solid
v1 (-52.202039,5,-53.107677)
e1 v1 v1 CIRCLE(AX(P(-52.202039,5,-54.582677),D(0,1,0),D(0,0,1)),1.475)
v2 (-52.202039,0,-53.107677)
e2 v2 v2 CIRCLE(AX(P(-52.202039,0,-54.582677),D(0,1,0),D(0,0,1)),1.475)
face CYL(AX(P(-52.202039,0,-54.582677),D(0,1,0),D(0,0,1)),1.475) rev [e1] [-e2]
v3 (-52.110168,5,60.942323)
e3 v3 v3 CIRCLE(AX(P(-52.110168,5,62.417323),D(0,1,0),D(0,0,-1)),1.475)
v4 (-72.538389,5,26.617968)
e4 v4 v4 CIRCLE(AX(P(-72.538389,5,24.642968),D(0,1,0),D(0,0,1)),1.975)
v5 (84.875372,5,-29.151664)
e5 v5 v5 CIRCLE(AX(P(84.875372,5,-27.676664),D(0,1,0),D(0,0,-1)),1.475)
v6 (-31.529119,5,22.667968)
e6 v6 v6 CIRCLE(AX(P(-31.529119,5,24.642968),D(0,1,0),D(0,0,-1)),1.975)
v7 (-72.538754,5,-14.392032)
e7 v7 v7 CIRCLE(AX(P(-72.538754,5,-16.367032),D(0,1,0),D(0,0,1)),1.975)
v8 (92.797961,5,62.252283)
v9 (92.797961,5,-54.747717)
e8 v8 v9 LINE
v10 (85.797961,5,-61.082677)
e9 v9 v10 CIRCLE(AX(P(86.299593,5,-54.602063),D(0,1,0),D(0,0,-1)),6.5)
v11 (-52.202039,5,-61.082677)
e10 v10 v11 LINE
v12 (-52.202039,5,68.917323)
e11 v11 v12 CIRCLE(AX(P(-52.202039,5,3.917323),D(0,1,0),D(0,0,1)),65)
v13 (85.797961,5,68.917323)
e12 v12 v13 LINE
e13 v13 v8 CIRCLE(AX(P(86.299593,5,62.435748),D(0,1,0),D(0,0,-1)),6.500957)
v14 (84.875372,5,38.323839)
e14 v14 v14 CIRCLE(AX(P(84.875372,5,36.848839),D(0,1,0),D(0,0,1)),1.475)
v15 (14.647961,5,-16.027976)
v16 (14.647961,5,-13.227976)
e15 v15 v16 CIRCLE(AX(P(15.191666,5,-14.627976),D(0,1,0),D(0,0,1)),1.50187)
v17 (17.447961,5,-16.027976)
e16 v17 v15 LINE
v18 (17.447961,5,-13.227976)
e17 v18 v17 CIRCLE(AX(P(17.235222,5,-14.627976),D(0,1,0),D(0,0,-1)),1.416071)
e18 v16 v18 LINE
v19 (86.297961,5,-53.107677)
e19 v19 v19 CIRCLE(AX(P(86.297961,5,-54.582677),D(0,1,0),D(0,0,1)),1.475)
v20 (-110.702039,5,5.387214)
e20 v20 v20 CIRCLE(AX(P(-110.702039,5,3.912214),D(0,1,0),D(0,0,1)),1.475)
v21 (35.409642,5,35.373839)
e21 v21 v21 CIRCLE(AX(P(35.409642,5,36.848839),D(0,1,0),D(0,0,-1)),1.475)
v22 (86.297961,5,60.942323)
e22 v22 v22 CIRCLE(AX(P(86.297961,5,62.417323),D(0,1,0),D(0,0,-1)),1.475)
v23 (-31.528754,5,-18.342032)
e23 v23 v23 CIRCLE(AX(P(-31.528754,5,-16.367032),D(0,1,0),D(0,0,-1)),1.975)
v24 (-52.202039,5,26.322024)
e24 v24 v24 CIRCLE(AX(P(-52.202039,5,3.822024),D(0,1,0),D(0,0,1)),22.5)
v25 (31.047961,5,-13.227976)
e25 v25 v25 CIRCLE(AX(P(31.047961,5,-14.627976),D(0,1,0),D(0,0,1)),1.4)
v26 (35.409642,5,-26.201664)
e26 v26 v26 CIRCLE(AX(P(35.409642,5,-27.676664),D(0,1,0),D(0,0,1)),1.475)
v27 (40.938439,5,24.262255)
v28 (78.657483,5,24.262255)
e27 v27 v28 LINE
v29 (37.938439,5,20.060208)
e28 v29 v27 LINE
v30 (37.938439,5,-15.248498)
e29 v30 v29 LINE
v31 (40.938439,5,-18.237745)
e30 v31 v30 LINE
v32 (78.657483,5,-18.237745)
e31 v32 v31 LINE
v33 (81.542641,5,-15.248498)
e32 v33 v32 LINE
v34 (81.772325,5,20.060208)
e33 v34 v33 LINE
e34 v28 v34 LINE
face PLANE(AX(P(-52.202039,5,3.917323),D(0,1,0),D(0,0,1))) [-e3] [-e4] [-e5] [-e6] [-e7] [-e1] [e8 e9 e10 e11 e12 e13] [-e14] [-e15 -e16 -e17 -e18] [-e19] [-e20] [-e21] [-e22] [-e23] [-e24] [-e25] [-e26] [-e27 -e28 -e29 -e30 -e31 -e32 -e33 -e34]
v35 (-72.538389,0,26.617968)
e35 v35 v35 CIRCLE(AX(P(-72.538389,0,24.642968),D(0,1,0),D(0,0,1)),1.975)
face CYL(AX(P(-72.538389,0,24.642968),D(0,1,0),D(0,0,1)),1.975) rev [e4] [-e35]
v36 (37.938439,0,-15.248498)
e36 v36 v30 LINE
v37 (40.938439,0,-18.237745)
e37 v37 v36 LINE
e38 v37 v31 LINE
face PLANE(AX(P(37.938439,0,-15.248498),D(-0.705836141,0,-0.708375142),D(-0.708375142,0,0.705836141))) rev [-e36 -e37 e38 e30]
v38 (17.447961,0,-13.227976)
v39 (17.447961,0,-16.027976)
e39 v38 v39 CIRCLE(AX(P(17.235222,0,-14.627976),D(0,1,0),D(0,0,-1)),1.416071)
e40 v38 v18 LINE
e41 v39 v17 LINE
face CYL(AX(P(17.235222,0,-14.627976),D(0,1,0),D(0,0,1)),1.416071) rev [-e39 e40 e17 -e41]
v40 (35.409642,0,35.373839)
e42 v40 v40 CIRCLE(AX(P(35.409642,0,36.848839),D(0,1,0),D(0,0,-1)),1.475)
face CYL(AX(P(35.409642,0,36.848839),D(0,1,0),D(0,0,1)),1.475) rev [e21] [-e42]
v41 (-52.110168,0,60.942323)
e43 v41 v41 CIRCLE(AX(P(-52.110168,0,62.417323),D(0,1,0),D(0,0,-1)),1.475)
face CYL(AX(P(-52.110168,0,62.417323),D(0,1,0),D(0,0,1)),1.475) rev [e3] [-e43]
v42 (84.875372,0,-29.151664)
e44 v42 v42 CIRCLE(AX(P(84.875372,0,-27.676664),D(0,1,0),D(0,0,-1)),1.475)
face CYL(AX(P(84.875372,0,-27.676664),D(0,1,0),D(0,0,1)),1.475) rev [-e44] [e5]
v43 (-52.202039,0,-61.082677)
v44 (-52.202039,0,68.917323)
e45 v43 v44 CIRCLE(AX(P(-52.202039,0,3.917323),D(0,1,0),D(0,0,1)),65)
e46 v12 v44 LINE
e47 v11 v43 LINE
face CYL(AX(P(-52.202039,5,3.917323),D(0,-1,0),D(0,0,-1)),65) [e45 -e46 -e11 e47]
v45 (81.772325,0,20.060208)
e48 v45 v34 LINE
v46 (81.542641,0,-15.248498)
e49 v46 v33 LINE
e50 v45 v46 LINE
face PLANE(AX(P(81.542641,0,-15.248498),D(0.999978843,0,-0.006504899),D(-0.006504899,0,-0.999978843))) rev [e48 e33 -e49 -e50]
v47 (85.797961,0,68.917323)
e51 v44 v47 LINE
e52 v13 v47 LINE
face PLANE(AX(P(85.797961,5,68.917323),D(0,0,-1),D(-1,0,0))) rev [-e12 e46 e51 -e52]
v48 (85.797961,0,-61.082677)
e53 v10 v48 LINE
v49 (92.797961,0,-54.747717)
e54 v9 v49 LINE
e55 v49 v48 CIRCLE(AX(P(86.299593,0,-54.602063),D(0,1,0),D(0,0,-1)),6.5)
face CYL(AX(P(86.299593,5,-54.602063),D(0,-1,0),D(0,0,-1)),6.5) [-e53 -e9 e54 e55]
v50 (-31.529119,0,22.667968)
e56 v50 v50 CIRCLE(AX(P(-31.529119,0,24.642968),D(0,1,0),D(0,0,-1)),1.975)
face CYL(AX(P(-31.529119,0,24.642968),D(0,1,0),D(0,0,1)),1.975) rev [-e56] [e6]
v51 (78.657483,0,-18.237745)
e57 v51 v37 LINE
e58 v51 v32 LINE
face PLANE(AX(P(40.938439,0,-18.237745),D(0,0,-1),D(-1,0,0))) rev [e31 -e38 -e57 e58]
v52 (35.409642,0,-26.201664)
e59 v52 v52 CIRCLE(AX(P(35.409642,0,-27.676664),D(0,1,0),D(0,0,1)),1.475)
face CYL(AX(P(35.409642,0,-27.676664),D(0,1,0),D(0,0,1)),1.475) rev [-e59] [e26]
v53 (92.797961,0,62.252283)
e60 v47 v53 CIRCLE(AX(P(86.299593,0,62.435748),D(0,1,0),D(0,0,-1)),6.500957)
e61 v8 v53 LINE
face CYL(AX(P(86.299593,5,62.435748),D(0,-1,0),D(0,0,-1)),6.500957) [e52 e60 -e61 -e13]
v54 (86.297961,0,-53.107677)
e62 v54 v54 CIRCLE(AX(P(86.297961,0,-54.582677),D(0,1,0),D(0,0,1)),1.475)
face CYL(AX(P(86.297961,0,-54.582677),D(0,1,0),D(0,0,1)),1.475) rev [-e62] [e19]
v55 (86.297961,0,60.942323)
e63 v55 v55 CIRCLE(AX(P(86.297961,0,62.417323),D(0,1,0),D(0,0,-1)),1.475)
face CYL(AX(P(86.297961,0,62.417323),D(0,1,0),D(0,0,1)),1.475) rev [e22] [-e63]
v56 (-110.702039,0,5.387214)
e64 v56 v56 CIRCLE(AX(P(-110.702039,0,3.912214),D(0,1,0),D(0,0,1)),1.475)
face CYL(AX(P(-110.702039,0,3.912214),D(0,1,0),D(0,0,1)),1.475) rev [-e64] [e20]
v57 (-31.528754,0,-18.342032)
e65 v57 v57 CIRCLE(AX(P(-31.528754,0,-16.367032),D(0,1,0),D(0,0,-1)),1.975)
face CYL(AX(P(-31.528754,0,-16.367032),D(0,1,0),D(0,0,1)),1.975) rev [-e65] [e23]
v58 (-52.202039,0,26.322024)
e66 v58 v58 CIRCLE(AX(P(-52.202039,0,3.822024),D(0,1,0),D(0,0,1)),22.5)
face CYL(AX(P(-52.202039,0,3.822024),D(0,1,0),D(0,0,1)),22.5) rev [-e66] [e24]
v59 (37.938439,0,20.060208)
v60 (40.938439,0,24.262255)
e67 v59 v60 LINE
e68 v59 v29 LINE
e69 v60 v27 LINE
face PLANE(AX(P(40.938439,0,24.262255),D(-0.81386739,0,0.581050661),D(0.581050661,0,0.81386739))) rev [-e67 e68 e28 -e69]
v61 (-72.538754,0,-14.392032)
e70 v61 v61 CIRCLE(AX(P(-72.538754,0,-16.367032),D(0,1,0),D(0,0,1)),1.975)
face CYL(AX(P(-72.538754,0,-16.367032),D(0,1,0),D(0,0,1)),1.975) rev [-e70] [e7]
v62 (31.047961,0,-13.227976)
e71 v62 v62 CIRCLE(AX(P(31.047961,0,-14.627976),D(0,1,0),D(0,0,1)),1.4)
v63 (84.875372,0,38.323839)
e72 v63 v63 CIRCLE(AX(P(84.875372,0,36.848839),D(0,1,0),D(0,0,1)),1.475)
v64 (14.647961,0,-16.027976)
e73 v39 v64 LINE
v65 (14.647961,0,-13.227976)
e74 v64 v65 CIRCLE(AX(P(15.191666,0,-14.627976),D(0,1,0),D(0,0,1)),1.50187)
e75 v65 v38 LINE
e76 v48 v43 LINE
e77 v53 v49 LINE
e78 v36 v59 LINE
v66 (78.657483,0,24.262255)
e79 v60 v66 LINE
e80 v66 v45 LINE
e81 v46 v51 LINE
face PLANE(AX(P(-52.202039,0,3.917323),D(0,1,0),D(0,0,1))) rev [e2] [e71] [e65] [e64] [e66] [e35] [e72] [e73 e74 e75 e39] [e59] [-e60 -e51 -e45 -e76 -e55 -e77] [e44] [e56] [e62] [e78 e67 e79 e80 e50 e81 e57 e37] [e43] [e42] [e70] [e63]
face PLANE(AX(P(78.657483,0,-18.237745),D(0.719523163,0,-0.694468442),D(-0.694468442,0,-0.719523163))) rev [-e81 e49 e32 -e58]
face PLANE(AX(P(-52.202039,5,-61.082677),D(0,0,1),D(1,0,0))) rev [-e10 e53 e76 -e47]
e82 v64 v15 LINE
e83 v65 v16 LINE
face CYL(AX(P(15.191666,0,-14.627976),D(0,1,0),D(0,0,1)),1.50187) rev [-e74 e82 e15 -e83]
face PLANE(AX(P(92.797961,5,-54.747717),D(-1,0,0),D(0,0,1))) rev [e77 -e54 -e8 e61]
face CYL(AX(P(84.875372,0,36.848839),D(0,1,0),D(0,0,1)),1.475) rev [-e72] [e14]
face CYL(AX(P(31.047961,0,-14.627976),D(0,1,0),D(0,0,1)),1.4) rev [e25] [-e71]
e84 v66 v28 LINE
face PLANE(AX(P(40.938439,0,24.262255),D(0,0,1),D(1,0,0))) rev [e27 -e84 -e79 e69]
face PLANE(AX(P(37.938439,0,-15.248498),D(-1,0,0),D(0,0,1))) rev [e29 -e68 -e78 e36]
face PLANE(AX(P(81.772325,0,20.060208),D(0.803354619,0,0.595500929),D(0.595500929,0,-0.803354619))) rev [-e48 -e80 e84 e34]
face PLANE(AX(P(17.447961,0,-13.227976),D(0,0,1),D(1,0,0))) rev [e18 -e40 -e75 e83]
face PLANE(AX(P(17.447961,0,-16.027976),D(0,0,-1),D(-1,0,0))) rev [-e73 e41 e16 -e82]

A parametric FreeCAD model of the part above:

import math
import FreeCAD as App
import Part
import Sketcher
Q = App.Units.Quantity

doc = App.newDocument("Part")
body = doc.addObject("PartDesign::Body", "Body")

# Sketch on XZ plane
sketch1 = body.newObject("Sketcher::SketchObject", "Sketch")
sketch1.AttachmentSupport = (doc.getObject("XZ_Plane"), [""])
sketch1.MapMode = "FlatFace"
sketch1.addGeometry([
    Part.LineSegment(App.Vector(85.797961, -61.082677, 0), App.Vector(-52.202039, -61.082677, 0)),  # 0
    Part.ArcOfCircle(Part.Circle(App.Vector(-52.202039, 3.917323, 0), App.Vector(0, 0, 1), 65), math.radians(90), math.radians(270)),  # 1
    Part.LineSegment(App.Vector(-52.202039, 68.917323, 0), App.Vector(85.797961, 68.917323, 0)),  # 2
    Part.ArcOfCircle(Part.Circle(App.Vector(86.299593, 62.435748, 0), App.Vector(0, 0, 1), 6.500957), math.radians(-1.617174), math.radians(94.425503)),  # 3
    Part.LineSegment(App.Vector(92.797961, 62.252283, 0), App.Vector(92.797961, -54.747717, 0)),  # 4
    Part.ArcOfCircle(Part.Circle(App.Vector(86.299593, -54.602063, 0), App.Vector(0, 0, 1), 6.5), math.radians(-94.426156), math.radians(-1.284013)),  # 5
], False)
sketch1.addConstraint([
    Sketcher.Constraint("Coincident", 0, 2, 1, 2),
    Sketcher.Constraint("Coincident", 1, 1, 2, 1),
    Sketcher.Constraint("Coincident", 2, 2, 3, 2),
    Sketcher.Constraint("Coincident", 3, 1, 4, 1),
    Sketcher.Constraint("Coincident", 4, 2, 5, 2),
    Sketcher.Constraint("Coincident", 5, 1, 0, 1),
    Sketcher.Constraint("Horizontal", 0),
    Sketcher.Constraint("Horizontal", 2),
    Sketcher.Constraint("Vertical", 4),
    Sketcher.Constraint("Radius", 1, Q("65 mm")),
    Sketcher.Constraint("Radius", 5, Q("6.5 mm")),
    Sketcher.Constraint("DistanceX", 0, 2, 0, 1, Q("138 mm")),
    Sketcher.Constraint("DistanceX", 2, 1, 2, 2, Q("138 mm")),
    Sketcher.Constraint("DistanceY", 4, 2, 4, 1, Q("117 mm")),
    Sketcher.Constraint("DistanceX", 1, 3, 2, 2, Q("138 mm")),
    Sketcher.Constraint("DistanceX", 0, 2, 2, 2, Q("138 mm")),
    Sketcher.Constraint("DistanceX", 2, 2, 3, 1, Q("7 mm")),
    Sketcher.Constraint("Radius", 3, Q("6.500957 mm")),
    Sketcher.Constraint("DistanceX", 1, 3, -1, 1, Q("52.202039 mm")),
    Sketcher.Constraint("DistanceY", -1, 1, 3, 3, Q("62.435748 mm")),
    Sketcher.Constraint("DistanceY", 3, 1, 2, 2, Q("6.66504 mm")),
])
pad1 = body.newObject("PartDesign::Pad", "Pad")
pad1.Profile = sketch1
pad1.Length = 5
pad1.Reversed = True

# Sketch on XZ plane
sketch2 = body.newObject("Sketcher::SketchObject", "Sketch001")
sketch2.AttachmentSupport = (doc.getObject("XZ_Plane"), [""])
sketch2.MapMode = "FlatFace"
sketch2.AttachmentOffset = App.Placement(App.Vector(0, 0, -5), App.Rotation())
sketch2.addGeometry([
    Part.Circle(App.Vector(86.297961, -54.582677, 0), App.Vector(0, 0, 1), 1.475),  # 0
    Part.Circle(App.Vector(-52.202039, -54.582677, 0), App.Vector(0, 0, 1), 1.475),  # 1
    Part.Circle(App.Vector(-110.702039, 3.912214, 0), App.Vector(0, 0, 1), 1.475),  # 2
    Part.Circle(App.Vector(86.297961, 62.417323, 0), App.Vector(0, 0, 1), 1.475),  # 3
    Part.Circle(App.Vector(-52.110168, 62.417323, 0), App.Vector(0, 0, 1), 1.475),  # 4
], False)
sketch2.addConstraint([
    Sketcher.Constraint("Equal", 0, 1),
    Sketcher.Constraint("Equal", 1, 2),
    Sketcher.Constraint("Equal", 2, 3),
    Sketcher.Constraint("Equal", 3, 4),
    Sketcher.Constraint("Horizontal", 0, 3, 1, 3),
    Sketcher.Constraint("Horizontal", 3, 3, 4, 3),
    Sketcher.Constraint("Vertical", 0, 3, 3, 3),
    Sketcher.Constraint("Diameter", 0, Q("2.95 mm")),
    Sketcher.Constraint("DistanceX", 2, 3, 0, 3, Q("197 mm")),
    Sketcher.Constraint("DistanceY", 0, 3, 3, 3, Q("117 mm")),
    Sketcher.Constraint("DistanceX", 1, 3, 0, 3, Q("138.5 mm")),
    Sketcher.Constraint("DistanceX", -1, 1, 0, 3, Q("86.297961 mm")),
    Sketcher.Constraint("DistanceX", 4, 3, -1, 1, Q("52.110168 mm")),
    Sketcher.Constraint("DistanceY", 1, 3, 2, 3, Q("58.494892 mm")),
    Sketcher.Constraint("DistanceY", 0, 3, -1, 1, Q("54.582677 mm")),
])
pocket1 = body.newObject("PartDesign::Pocket", "Pocket")
pocket1.Profile = sketch2
pocket1.Type = "ThroughAll"
pocket1.Reversed = True

# Sketch on XZ plane
sketch3 = body.newObject("Sketcher::SketchObject", "Sketch002")
sketch3.AttachmentSupport = (doc.getObject("XZ_Plane"), [""])
sketch3.MapMode = "FlatFace"
sketch3.AttachmentOffset = App.Placement(App.Vector(0, 0, -5), App.Rotation())
sketch3.addGeometry([
    Part.Circle(App.Vector(-52.202039, 3.822024, 0), App.Vector(0, 0, 1), 22.5),  # 0
    Part.Circle(App.Vector(-72.538754, -16.367032, 0), App.Vector(0, 0, 1), 1.975),  # 1
    Part.Circle(App.Vector(31.047961, -14.627976, 0), App.Vector(0, 0, 1), 1.4),  # 2
    Part.Circle(App.Vector(35.409642, -27.676664, 0), App.Vector(0, 0, 1), 1.475),  # 3
    Part.Circle(App.Vector(84.875372, -27.676664, 0), App.Vector(0, 0, 1), 1.475),  # 4
    Part.Circle(App.Vector(84.875372, 36.848839, 0), App.Vector(0, 0, 1), 1.475),  # 5
    Part.Circle(App.Vector(35.409642, 36.848839, 0), App.Vector(0, 0, 1), 1.475),  # 6
    Part.Circle(App.Vector(-72.538389, 24.642968, 0), App.Vector(0, 0, 1), 1.975),  # 7
    Part.Circle(App.Vector(-31.529119, 24.642968, 0), App.Vector(0, 0, 1), 1.975),  # 8
    Part.Circle(App.Vector(-31.528754, -16.367032, 0), App.Vector(0, 0, 1), 1.975),  # 9
    Part.LineSegment(App.Vector(37.938439, -15.248498, 0), App.Vector(37.938439, 20.060208, 0)),  # 10
    Part.LineSegment(App.Vector(37.938439, 20.060208, 0), App.Vector(40.938439, 24.262255, 0)),  # 11
    Part.LineSegment(App.Vector(40.938439, 24.262255, 0), App.Vector(78.657483, 24.262255, 0)),  # 12
    Part.LineSegment(App.Vector(78.657483, 24.262255, 0), App.Vector(81.772325, 20.060208, 0)),  # 13
    Part.LineSegment(App.Vector(81.772325, 20.060208, 0), App.Vector(81.542641, -15.248498, 0)),  # 14
    Part.LineSegment(App.Vector(81.542641, -15.248498, 0), App.Vector(78.657483, -18.237745, 0)),  # 15
    Part.LineSegment(App.Vector(78.657483, -18.237745, 0), App.Vector(40.938439, -18.237745, 0)),  # 16
    Part.LineSegment(App.Vector(40.938439, -18.237745, 0), App.Vector(37.938439, -15.248498, 0)),  # 17
    Part.LineSegment(App.Vector(17.447961, -16.027976, 0), App.Vector(14.647961, -16.027976, 0)),  # 18
    Part.ArcOfCircle(Part.Circle(App.Vector(15.191666, -14.627976, 0), App.Vector(0, 0, 1), 1.50187), math.radians(111.224202), math.radians(248.775798)),  # 19
    Part.LineSegment(App.Vector(14.647961, -13.227976, 0), App.Vector(17.447961, -13.227976, 0)),  # 20
    Part.ArcOfCircle(Part.Circle(App.Vector(17.235222, -14.627976, 0), App.Vector(0, 0, 1), 1.416071), math.radians(-81.359622), math.radians(81.359622)),  # 21
], False)
sketch3.addConstraint([
    Sketcher.Constraint("Coincident", 10, 2, 11, 1),
    Sketcher.Constraint("Coincident", 11, 2, 12, 1),
    Sketcher.Constraint("Coincident", 12, 2, 13, 1),
    Sketcher.Constraint("Coincident", 13, 2, 14, 1),
    Sketcher.Constraint("Coincident", 14, 2, 15, 1),
    Sketcher.Constraint("Coincident", 15, 2, 16, 1),
    Sketcher.Constraint("Coincident", 16, 2, 17, 1),
    Sketcher.Constraint("Coincident", 17, 2, 10, 1),
    Sketcher.Constraint("Coincident", 18, 2, 19, 2),
    Sketcher.Constraint("Coincident", 19, 1, 20, 1),
    Sketcher.Constraint("Coincident", 20, 2, 21, 2),
    Sketcher.Constraint("Coincident", 21, 1, 18, 1),
    Sketcher.Constraint("Vertical", 10),
    Sketcher.Constraint("Horizontal", 12),
    Sketcher.Constraint("Horizontal", 16),
    Sketcher.Constraint("Horizontal", 18),
    Sketcher.Constraint("Horizontal", 20),
    Sketcher.Constraint("Equal", 3, 4),
    Sketcher.Constraint("Equal", 4, 5),
    Sketcher.Constraint("Equal", 5, 6),
    Sketcher.Constraint("Equal", 1, 7),
    Sketcher.Constraint("Equal", 7, 8),
    Sketcher.Constraint("Equal", 8, 9),
    Sketcher.Constraint("Horizontal", 3, 3, 4, 3),
    Sketcher.Constraint("Horizontal", 5, 3, 6, 3),
    Sketcher.Constraint("Horizontal", 7, 3, 8, 3),
    Sketcher.Constraint("Horizontal", 1, 3, 9, 3),
    Sketcher.Constraint("Horizontal", 2, 3, 19, 3),
    Sketcher.Constraint("Horizontal", 19, 3, 21, 3),
    Sketcher.Constraint("Horizontal", 10, 2, 13, 2),
    Sketcher.Constraint("Horizontal", 14, 2, 17, 2),
    Sketcher.Constraint("Vertical", 4, 3, 5, 3),
    Sketcher.Constraint("Vertical", 3, 3, 6, 3),
    Sketcher.Constraint("Vertical", 12, 2, 15, 2),
    Sketcher.Constraint("Vertical", 11, 2, 16, 2),
    Sketcher.Constraint("Vertical", 18, 2, 19, 1),
    Sketcher.Constraint("Diameter", 0, Q("45 mm")),
    Sketcher.Constraint("Diameter", 2, Q("2.8 mm")),
    Sketcher.Constraint("Diameter", 1, Q("3.95 mm")),
    Sketcher.Constraint("Diameter", 3, Q("2.95 mm")),
    Sketcher.Constraint("DistanceX", 18, 2, 18, 1, Q("2.8 mm")),
    Sketcher.Constraint("DistanceX", 10, 2, 11, 2, Q("3 mm")),
    Sketcher.Constraint("DistanceY", 15, 2, 12, 2, Q("42.5 mm")),
    Sketcher.Constraint("DistanceY", 18, 2, 19, 3, Q("1.4 mm")),
    Sketcher.Constraint("DistanceX", 18, 2, 2, 3, Q("16.4 mm")),
    Sketcher.Constraint("Radius", 19, Q("1.50187 mm")),
    Sketcher.Constraint("Radius", 21, Q("1.416071 mm")),
    Sketcher.Constraint("DistanceX", 0, 3, 2, 3, Q("83.25 mm")),
    Sketcher.Constraint("DistanceY", 2, 3, 0, 3, Q("18.45 mm")),
    Sketcher.Constraint("DistanceY", 1, 3, 7, 3, Q("41.01 mm")),
    Sketcher.Constraint("DistanceX", 1, 3, 9, 3, Q("41.01 mm")),
    Sketcher.Constraint("DistanceX", 3, 3, 14, 2, Q("46.132998 mm")),
    Sketcher.Constraint("Distance", 11, Q("5.163061 mm")),
    Sketcher.Constraint("DistanceX", 12, 1, 12, 2, Q("37.719043 mm")),
    Sketcher.Constraint("DistanceY", 10, 1, 10, 2, Q("35.308706 mm")),
    Sketcher.Constraint("DistanceX", 0, 3, -1, 1, Q("52.202039 mm")),
    Sketcher.Constraint("DistanceY", 1, 3, -1, 1, Q("16.367032 mm")),
    Sketcher.Constraint("DistanceX", -1, 1, 4, 3, Q("84.875372 mm")),
    Sketcher.Constraint("DistanceY", -1, 1, 5, 3, Q("36.848839 mm")),
    Sketcher.Constraint("DistanceX", 7, 3, -1, 1, Q("72.538389 mm")),
    Sketcher.Constraint("DistanceX", 8, 3, -1, 1, Q("31.529119 mm")),
    Sketcher.Constraint("DistanceX", -1, 1, 10, 2, Q("37.938439 mm")),
    Sketcher.Constraint("DistanceY", -1, 1, 10, 2, Q("20.060208 mm")),
    Sketcher.Constraint("DistanceX", -1, 1, 14, 2, Q("81.542641 mm")),
    Sketcher.Constraint("DistanceX", 9, 3, 19, 3, Q("46.72042 mm")),
    Sketcher.Constraint("DistanceY", 2, 3, 11, 2, Q("38.890231 mm")),
    Sketcher.Constraint("DistanceY", 4, 3, 12, 2, Q("51.938919 mm")),
    Sketcher.Constraint("Distance", 13, Q("5.230625 mm")),
])
pocket2 = body.newObject("PartDesign::Pocket", "Pocket001")
pocket2.Profile = sketch3
pocket2.Type = "ThroughAll"
pocket2.Reversed = True

doc.recompute()
